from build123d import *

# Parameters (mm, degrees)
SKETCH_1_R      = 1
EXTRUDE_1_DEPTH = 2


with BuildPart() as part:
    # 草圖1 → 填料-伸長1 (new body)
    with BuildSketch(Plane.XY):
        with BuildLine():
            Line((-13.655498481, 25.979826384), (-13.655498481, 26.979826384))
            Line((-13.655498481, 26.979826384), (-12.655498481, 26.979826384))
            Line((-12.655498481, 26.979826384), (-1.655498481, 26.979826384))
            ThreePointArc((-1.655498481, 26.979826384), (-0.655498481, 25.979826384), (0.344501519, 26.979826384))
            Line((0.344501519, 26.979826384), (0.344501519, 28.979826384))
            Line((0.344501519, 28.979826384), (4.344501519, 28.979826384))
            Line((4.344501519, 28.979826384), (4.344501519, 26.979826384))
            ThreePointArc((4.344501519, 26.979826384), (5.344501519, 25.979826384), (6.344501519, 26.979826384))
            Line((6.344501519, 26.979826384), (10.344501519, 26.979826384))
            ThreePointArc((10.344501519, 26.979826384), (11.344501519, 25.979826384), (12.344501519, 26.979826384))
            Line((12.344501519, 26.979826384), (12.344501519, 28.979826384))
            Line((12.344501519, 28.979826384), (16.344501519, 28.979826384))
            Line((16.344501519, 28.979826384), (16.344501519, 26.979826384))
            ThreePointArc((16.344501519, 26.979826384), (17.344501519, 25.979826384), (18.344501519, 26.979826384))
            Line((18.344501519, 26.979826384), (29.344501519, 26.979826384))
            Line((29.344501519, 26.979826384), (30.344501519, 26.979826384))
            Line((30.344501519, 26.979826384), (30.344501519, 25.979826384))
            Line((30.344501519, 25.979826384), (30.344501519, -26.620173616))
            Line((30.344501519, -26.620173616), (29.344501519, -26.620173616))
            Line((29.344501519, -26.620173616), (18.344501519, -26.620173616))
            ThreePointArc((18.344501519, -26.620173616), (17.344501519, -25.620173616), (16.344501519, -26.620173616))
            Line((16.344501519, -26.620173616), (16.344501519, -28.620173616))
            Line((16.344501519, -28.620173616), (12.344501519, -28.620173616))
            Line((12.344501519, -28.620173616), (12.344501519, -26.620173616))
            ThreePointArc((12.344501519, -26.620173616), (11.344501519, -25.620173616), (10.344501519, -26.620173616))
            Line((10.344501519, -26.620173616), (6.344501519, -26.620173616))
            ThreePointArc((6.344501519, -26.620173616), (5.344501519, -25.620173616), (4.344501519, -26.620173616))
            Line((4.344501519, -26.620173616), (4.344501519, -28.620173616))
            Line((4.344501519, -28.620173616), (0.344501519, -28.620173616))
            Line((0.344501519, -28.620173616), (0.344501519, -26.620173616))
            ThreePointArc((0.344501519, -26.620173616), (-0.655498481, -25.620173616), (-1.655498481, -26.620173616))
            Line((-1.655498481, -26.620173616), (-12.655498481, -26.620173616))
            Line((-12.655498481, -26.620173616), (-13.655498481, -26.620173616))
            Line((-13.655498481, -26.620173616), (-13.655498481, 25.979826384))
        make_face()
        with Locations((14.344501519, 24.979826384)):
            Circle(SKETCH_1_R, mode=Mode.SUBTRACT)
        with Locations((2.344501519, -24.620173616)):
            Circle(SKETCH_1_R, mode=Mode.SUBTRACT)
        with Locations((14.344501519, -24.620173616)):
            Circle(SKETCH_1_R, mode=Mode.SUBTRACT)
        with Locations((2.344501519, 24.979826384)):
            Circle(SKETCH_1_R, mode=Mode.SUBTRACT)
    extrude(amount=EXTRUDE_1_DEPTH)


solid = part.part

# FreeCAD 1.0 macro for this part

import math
import FreeCAD as App
import Part
import Sketcher

V = App.Vector

doc = App.newDocument("Part")
body = doc.addObject("PartDesign::Body", "Body")

# Sketch on XY plane
sketch1 = body.newObject("Sketcher::SketchObject", "Sketch")
sketch1.AttachmentSupport = (doc.getObject("XY_Plane"), [""])
sketch1.MapMode = "FlatFace"
sketch1.addGeometry(Part.LineSegment(V(-1.7, 27, 0), V(-13.7, 27, 0)), False)
sketch1.addGeometry(Part.LineSegment(V(-13.7, 27, 0), V(-13.7, -26.6, 0)), False)
sketch1.addGeometry(Part.LineSegment(V(-13.7, -26.6, 0), V(-1.7, -26.6, 0)), False)
sketch1.addGeometry(Part.ArcOfCircle(Part.Circle(V(-0.7, -26.6, 0), V(0, 0, 1), 1), math.radians(0), math.radians(180)), False)
sketch1.addGeometry(Part.LineSegment(V(0.3, -26.6, 0), V(0.3, -28.6, 0)), False)
sketch1.addGeometry(Part.LineSegment(V(0.3, -28.6, 0), V(4.3, -28.6, 0)), False)
sketch1.addGeometry(Part.LineSegment(V(4.3, -28.6, 0), V(4.3, -26.6, 0)), False)
sketch1.addGeometry(Part.ArcOfCircle(Part.Circle(V(5.3, -26.6, 0), V(0, 0, 1), 1), math.radians(0), math.radians(180)), False)
sketch1.addGeometry(Part.LineSegment(V(6.3, -26.6, 0), V(10.3, -26.6, 0)), False)
sketch1.addGeometry(Part.ArcOfCircle(Part.Circle(V(11.3, -26.6, 0), V(0, 0, 1), 1), math.radians(0), math.radians(180)), False)
sketch1.addGeometry(Part.LineSegment(V(12.3, -26.6, 0), V(12.3, -28.6, 0)), False)
sketch1.addGeometry(Part.LineSegment(V(12.3, -28.6, 0), V(16.3, -28.6, 0)), False)
sketch1.addGeometry(Part.LineSegment(V(16.3, -28.6, 0), V(16.3, -26.6, 0)), False)
sketch1.addGeometry(Part.ArcOfCircle(Part.Circle(V(17.3, -26.6, 0), V(0, 0, 1), 1), math.radians(0), math.radians(180)), False)
sketch1.addGeometry(Part.LineSegment(V(18.3, -26.6, 0), V(30.3, -26.6, 0)), False)
sketch1.addGeometry(Part.LineSegment(V(30.3, -26.6, 0), V(30.3, 27, 0)), False)
sketch1.addGeometry(Part.LineSegment(V(30.3, 27, 0), V(18.3, 27, 0)), False)
sketch1.addGeometry(Part.ArcOfCircle(Part.Circle(V(17.3, 27, 0), V(0, 0, 1), 1), math.radians(180), math.radians(360)), False)
sketch1.addGeometry(Part.LineSegment(V(16.3, 27, 0), V(16.3, 29, 0)), False)
sketch1.addGeometry(Part.LineSegment(V(16.3, 29, 0), V(12.3, 29, 0)), False)
sketch1.addGeometry(Part.LineSegment(V(12.3, 29, 0), V(12.3, 27, 0)), False)
sketch1.addGeometry(Part.ArcOfCircle(Part.Circle(V(11.3, 27, 0), V(0, 0, 1), 1), math.radians(180), math.radians(360)), False)
sketch1.addGeometry(Part.LineSegment(V(10.3, 27, 0), V(6.3, 27, 0)), False)
sketch1.addGeometry(Part.ArcOfCircle(Part.Circle(V(5.3, 27, 0), V(0, 0, 1), 1), math.radians(180), math.radians(360)), False)
sketch1.addGeometry(Part.LineSegment(V(4.3, 27, 0), V(4.3, 29, 0)), False)
sketch1.addGeometry(Part.LineSegment(V(4.3, 29, 0), V(0.3, 29, 0)), False)
sketch1.addGeometry(Part.LineSegment(V(0.3, 29, 0), V(0.3, 27, 0)), False)
sketch1.addGeometry(Part.ArcOfCircle(Part.Circle(V(-0.7, 27, 0), V(0, 0, 1), 1), math.radians(180), math.radians(360)), False)
sketch1.addGeometry(Part.Circle(V(14.3, -24.6, 0), V(0, 0, 1), 1), False)
sketch1.addGeometry(Part.Circle(V(2.3, -24.6, 0), V(0, 0, 1), 1), False)
sketch1.addGeometry(Part.Circle(V(14.3, 25, 0), V(0, 0, 1), 1), False)
sketch1.addGeometry(Part.Circle(V(2.3, 25, 0), V(0, 0, 1), 1), False)
sketch1.addConstraint(Sketcher.Constraint("Coincident", 0, 2, 1, 1))
sketch1.addConstraint(Sketcher.Constraint("Coincident", 1, 2, 2, 1))
sketch1.addConstraint(Sketcher.Constraint("Coincident", 2, 2, 3, 2))
sketch1.addConstraint(Sketcher.Constraint("Tangent", 3, 1, 4, 1))
sketch1.addConstraint(Sketcher.Constraint("Coincident", 4, 2, 5, 1))
sketch1.addConstraint(Sketcher.Constraint("Coincident", 5, 2, 6, 1))
sketch1.addConstraint(Sketcher.Constraint("Tangent", 6, 2, 7, 2))
sketch1.addConstraint(Sketcher.Constraint("Coincident", 7, 1, 8, 1))
sketch1.addConstraint(Sketcher.Constraint("Coincident", 8, 2, 9, 2))
sketch1.addConstraint(Sketcher.Constraint("Tangent", 9, 1, 10, 1))
sketch1.addConstraint(Sketcher.Constraint("Coincident", 10, 2, 11, 1))
sketch1.addConstraint(Sketcher.Constraint("Coincident", 11, 2, 12, 1))
sketch1.addConstraint(Sketcher.Constraint("Tangent", 12, 2, 13, 2))
sketch1.addConstraint(Sketcher.Constraint("Coincident", 13, 1, 14, 1))
sketch1.addConstraint(Sketcher.Constraint("Coincident", 14, 2, 15, 1))
sketch1.addConstraint(Sketcher.Constraint("Coincident", 15, 2, 16, 1))
sketch1.addConstraint(Sketcher.Constraint("Coincident", 16, 2, 17, 2))
sketch1.addConstraint(Sketcher.Constraint("Tangent", 17, 1, 18, 1))
sketch1.addConstraint(Sketcher.Constraint("Coincident", 18, 2, 19, 1))
sketch1.addConstraint(Sketcher.Constraint("Coincident", 19, 2, 20, 1))
sketch1.addConstraint(Sketcher.Constraint("Tangent", 20, 2, 21, 2))
sketch1.addConstraint(Sketcher.Constraint("Coincident", 21, 1, 22, 1))
sketch1.addConstraint(Sketcher.Constraint("Coincident", 22, 2, 23, 2))
sketch1.addConstraint(Sketcher.Constraint("Tangent", 23, 1, 24, 1))
sketch1.addConstraint(Sketcher.Constraint("Coincident", 24, 2, 25, 1))
sketch1.addConstraint(Sketcher.Constraint("Coincident", 25, 2, 26, 1))
sketch1.addConstraint(Sketcher.Constraint("Tangent", 26, 2, 27, 2))
sketch1.addConstraint(Sketcher.Constraint("Coincident", 27, 1, 0, 1))
sketch1.addConstraint(Sketcher.Constraint("Horizontal", 0))
sketch1.addConstraint(Sketcher.Constraint("Vertical", 1))
sketch1.addConstraint(Sketcher.Constraint("Horizontal", 2))
sketch1.addConstraint(Sketcher.Constraint("Vertical", 4))
sketch1.addConstraint(Sketcher.Constraint("Horizontal", 5))
sketch1.addConstraint(Sketcher.Constraint("Vertical", 6))
sketch1.addConstraint(Sketcher.Constraint("Horizontal", 8))
sketch1.addConstraint(Sketcher.Constraint("Vertical", 10))
sketch1.addConstraint(Sketcher.Constraint("Horizontal", 11))
sketch1.addConstraint(Sketcher.Constraint("Vertical", 12))
sketch1.addConstraint(Sketcher.Constraint("Horizontal", 14))
sketch1.addConstraint(Sketcher.Constraint("Vertical", 15))
sketch1.addConstraint(Sketcher.Constraint("Horizontal", 16))
sketch1.addConstraint(Sketcher.Constraint("Vertical", 18))
sketch1.addConstraint(Sketcher.Constraint("Horizontal", 19))
sketch1.addConstraint(Sketcher.Constraint("Vertical", 20))
sketch1.addConstraint(Sketcher.Constraint("Horizontal", 22))
sketch1.addConstraint(Sketcher.Constraint("Vertical", 24))
sketch1.addConstraint(Sketcher.Constraint("Horizontal", 25))
sketch1.addConstraint(Sketcher.Constraint("Vertical", 26))
sketch1.addConstraint(Sketcher.Constraint("Equal", 3, 7))
sketch1.addConstraint(Sketcher.Constraint("Equal", 7, 9))
sketch1.addConstraint(Sketcher.Constraint("Equal", 9, 13))
sketch1.addConstraint(Sketcher.Constraint("Equal", 13, 17))
sketch1.addConstraint(Sketcher.Constraint("Equal", 17, 21))
sketch1.addConstraint(Sketcher.Constraint("Equal", 21, 23))
sketch1.addConstraint(Sketcher.Constraint("Equal", 23, 27))
sketch1.addConstraint(Sketcher.Constraint("Equal", 27, 28))
sketch1.addConstraint(Sketcher.Constraint("Equal", 28, 29))
sketch1.addConstraint(Sketcher.Constraint("Equal", 29, 30))
sketch1.addConstraint(Sketcher.Constraint("Equal", 30, 31))
sketch1.addConstraint(Sketcher.Constraint("Horizontal", 3, 3, 7, 3))
sketch1.addConstraint(Sketcher.Constraint("Horizontal", 7, 3, 9, 3))
sketch1.addConstraint(Sketcher.Constraint("Horizontal", 9, 3, 13, 3))
sketch1.addConstraint(Sketcher.Constraint("Horizontal", 17, 3, 21, 3))
sketch1.addConstraint(Sketcher.Constraint("Horizontal", 21, 3, 23, 3))
sketch1.addConstraint(Sketcher.Constraint("Horizontal", 23, 3, 27, 3))
sketch1.addConstraint(Sketcher.Constraint("Horizontal", 28, 3, 29, 3))
sketch1.addConstraint(Sketcher.Constraint("Horizontal", 30, 3, 31, 3))
sketch1.addConstraint(Sketcher.Constraint("Horizontal", 27, 3, 0, 2))
sketch1.addConstraint(Sketcher.Constraint("Horizontal", 13, 3, 1, 2))
sketch1.addConstraint(Sketcher.Constraint("Horizontal", 6, 2, 7, 1))
sketch1.addConstraint(Sketcher.Constraint("Horizontal", 5, 2, 10, 2))
sketch1.addConstraint(Sketcher.Constraint("Horizontal", 12, 2, 13, 1))
sketch1.addConstraint(Sketcher.Constraint("Horizontal", 0, 2, 15, 2))
sketch1.addConstraint(Sketcher.Constraint("Horizontal", 20, 2, 21, 1))
sketch1.addConstraint(Sketcher.Constraint("Horizontal", 19, 2, 24, 2))
sketch1.addConstraint(Sketcher.Constraint("Vertical", 13, 3, 17, 3))
sketch1.addConstraint(Sketcher.Constraint("Vertical", 9, 3, 21, 3))
sketch1.addConstraint(Sketcher.Constraint("Vertical", 7, 3, 23, 3))
sketch1.addConstraint(Sketcher.Constraint("Vertical", 3, 3, 27, 3))
sketch1.addConstraint(Sketcher.Constraint("Vertical", 28, 3, 30, 3))
sketch1.addConstraint(Sketcher.Constraint("Vertical", 29, 3, 31, 3))
sketch1.addConstraint(Sketcher.Constraint("Equal", 5, 8))
sketch1.addConstraint(Sketcher.Constraint("Equal", 8, 11))
sketch1.addConstraint(Sketcher.Constraint("Equal", 2, 14))
sketch1.addConstraint(Sketcher.Constraint("Equal", 12, 18))
sketch1.addConstraint(Sketcher.Constraint("Diameter", 28, 2.0))
sketch1.addConstraint(Sketcher.Constraint("DistanceX", 0, 2, 0, 1, 12.0))
sketch1.addConstraint(Sketcher.Constraint("DistanceX", 5, 1, 5, 2, 4.0))
sketch1.addConstraint(Sketcher.Constraint("DistanceY", 4, 2, 4, 1, 2.0))
sketch1.addConstraint(Sketcher.Constraint("DistanceY", 1, 2, 1, 1, 53.6))
sketch1.addConstraint(Sketcher.Constraint("DistanceX", 9, 3, 28, 3, 3.0))
sketch1.addConstraint(Sketcher.Constraint("DistanceY", 9, 3, 28, 3, 2.0))
sketch1.addConstraint(Sketcher.Constraint("DistanceX", 3, 3, 29, 3, 3.0))
sketch1.addConstraint(Sketcher.Constraint("DistanceY", 30, 3, 21, 3, 2.0))
sketch1.addConstraint(Sketcher.Constraint("DistanceX", 3, 3, -1, 1, 0.655498))
sketch1.addConstraint(Sketcher.Constraint("DistanceY", 3, 3, -1, 1, 26.620174))
pad1 = body.newObject("PartDesign::Pad", "Pad")
pad1.Profile = sketch1
pad1.Length = 2

doc.recompute()
